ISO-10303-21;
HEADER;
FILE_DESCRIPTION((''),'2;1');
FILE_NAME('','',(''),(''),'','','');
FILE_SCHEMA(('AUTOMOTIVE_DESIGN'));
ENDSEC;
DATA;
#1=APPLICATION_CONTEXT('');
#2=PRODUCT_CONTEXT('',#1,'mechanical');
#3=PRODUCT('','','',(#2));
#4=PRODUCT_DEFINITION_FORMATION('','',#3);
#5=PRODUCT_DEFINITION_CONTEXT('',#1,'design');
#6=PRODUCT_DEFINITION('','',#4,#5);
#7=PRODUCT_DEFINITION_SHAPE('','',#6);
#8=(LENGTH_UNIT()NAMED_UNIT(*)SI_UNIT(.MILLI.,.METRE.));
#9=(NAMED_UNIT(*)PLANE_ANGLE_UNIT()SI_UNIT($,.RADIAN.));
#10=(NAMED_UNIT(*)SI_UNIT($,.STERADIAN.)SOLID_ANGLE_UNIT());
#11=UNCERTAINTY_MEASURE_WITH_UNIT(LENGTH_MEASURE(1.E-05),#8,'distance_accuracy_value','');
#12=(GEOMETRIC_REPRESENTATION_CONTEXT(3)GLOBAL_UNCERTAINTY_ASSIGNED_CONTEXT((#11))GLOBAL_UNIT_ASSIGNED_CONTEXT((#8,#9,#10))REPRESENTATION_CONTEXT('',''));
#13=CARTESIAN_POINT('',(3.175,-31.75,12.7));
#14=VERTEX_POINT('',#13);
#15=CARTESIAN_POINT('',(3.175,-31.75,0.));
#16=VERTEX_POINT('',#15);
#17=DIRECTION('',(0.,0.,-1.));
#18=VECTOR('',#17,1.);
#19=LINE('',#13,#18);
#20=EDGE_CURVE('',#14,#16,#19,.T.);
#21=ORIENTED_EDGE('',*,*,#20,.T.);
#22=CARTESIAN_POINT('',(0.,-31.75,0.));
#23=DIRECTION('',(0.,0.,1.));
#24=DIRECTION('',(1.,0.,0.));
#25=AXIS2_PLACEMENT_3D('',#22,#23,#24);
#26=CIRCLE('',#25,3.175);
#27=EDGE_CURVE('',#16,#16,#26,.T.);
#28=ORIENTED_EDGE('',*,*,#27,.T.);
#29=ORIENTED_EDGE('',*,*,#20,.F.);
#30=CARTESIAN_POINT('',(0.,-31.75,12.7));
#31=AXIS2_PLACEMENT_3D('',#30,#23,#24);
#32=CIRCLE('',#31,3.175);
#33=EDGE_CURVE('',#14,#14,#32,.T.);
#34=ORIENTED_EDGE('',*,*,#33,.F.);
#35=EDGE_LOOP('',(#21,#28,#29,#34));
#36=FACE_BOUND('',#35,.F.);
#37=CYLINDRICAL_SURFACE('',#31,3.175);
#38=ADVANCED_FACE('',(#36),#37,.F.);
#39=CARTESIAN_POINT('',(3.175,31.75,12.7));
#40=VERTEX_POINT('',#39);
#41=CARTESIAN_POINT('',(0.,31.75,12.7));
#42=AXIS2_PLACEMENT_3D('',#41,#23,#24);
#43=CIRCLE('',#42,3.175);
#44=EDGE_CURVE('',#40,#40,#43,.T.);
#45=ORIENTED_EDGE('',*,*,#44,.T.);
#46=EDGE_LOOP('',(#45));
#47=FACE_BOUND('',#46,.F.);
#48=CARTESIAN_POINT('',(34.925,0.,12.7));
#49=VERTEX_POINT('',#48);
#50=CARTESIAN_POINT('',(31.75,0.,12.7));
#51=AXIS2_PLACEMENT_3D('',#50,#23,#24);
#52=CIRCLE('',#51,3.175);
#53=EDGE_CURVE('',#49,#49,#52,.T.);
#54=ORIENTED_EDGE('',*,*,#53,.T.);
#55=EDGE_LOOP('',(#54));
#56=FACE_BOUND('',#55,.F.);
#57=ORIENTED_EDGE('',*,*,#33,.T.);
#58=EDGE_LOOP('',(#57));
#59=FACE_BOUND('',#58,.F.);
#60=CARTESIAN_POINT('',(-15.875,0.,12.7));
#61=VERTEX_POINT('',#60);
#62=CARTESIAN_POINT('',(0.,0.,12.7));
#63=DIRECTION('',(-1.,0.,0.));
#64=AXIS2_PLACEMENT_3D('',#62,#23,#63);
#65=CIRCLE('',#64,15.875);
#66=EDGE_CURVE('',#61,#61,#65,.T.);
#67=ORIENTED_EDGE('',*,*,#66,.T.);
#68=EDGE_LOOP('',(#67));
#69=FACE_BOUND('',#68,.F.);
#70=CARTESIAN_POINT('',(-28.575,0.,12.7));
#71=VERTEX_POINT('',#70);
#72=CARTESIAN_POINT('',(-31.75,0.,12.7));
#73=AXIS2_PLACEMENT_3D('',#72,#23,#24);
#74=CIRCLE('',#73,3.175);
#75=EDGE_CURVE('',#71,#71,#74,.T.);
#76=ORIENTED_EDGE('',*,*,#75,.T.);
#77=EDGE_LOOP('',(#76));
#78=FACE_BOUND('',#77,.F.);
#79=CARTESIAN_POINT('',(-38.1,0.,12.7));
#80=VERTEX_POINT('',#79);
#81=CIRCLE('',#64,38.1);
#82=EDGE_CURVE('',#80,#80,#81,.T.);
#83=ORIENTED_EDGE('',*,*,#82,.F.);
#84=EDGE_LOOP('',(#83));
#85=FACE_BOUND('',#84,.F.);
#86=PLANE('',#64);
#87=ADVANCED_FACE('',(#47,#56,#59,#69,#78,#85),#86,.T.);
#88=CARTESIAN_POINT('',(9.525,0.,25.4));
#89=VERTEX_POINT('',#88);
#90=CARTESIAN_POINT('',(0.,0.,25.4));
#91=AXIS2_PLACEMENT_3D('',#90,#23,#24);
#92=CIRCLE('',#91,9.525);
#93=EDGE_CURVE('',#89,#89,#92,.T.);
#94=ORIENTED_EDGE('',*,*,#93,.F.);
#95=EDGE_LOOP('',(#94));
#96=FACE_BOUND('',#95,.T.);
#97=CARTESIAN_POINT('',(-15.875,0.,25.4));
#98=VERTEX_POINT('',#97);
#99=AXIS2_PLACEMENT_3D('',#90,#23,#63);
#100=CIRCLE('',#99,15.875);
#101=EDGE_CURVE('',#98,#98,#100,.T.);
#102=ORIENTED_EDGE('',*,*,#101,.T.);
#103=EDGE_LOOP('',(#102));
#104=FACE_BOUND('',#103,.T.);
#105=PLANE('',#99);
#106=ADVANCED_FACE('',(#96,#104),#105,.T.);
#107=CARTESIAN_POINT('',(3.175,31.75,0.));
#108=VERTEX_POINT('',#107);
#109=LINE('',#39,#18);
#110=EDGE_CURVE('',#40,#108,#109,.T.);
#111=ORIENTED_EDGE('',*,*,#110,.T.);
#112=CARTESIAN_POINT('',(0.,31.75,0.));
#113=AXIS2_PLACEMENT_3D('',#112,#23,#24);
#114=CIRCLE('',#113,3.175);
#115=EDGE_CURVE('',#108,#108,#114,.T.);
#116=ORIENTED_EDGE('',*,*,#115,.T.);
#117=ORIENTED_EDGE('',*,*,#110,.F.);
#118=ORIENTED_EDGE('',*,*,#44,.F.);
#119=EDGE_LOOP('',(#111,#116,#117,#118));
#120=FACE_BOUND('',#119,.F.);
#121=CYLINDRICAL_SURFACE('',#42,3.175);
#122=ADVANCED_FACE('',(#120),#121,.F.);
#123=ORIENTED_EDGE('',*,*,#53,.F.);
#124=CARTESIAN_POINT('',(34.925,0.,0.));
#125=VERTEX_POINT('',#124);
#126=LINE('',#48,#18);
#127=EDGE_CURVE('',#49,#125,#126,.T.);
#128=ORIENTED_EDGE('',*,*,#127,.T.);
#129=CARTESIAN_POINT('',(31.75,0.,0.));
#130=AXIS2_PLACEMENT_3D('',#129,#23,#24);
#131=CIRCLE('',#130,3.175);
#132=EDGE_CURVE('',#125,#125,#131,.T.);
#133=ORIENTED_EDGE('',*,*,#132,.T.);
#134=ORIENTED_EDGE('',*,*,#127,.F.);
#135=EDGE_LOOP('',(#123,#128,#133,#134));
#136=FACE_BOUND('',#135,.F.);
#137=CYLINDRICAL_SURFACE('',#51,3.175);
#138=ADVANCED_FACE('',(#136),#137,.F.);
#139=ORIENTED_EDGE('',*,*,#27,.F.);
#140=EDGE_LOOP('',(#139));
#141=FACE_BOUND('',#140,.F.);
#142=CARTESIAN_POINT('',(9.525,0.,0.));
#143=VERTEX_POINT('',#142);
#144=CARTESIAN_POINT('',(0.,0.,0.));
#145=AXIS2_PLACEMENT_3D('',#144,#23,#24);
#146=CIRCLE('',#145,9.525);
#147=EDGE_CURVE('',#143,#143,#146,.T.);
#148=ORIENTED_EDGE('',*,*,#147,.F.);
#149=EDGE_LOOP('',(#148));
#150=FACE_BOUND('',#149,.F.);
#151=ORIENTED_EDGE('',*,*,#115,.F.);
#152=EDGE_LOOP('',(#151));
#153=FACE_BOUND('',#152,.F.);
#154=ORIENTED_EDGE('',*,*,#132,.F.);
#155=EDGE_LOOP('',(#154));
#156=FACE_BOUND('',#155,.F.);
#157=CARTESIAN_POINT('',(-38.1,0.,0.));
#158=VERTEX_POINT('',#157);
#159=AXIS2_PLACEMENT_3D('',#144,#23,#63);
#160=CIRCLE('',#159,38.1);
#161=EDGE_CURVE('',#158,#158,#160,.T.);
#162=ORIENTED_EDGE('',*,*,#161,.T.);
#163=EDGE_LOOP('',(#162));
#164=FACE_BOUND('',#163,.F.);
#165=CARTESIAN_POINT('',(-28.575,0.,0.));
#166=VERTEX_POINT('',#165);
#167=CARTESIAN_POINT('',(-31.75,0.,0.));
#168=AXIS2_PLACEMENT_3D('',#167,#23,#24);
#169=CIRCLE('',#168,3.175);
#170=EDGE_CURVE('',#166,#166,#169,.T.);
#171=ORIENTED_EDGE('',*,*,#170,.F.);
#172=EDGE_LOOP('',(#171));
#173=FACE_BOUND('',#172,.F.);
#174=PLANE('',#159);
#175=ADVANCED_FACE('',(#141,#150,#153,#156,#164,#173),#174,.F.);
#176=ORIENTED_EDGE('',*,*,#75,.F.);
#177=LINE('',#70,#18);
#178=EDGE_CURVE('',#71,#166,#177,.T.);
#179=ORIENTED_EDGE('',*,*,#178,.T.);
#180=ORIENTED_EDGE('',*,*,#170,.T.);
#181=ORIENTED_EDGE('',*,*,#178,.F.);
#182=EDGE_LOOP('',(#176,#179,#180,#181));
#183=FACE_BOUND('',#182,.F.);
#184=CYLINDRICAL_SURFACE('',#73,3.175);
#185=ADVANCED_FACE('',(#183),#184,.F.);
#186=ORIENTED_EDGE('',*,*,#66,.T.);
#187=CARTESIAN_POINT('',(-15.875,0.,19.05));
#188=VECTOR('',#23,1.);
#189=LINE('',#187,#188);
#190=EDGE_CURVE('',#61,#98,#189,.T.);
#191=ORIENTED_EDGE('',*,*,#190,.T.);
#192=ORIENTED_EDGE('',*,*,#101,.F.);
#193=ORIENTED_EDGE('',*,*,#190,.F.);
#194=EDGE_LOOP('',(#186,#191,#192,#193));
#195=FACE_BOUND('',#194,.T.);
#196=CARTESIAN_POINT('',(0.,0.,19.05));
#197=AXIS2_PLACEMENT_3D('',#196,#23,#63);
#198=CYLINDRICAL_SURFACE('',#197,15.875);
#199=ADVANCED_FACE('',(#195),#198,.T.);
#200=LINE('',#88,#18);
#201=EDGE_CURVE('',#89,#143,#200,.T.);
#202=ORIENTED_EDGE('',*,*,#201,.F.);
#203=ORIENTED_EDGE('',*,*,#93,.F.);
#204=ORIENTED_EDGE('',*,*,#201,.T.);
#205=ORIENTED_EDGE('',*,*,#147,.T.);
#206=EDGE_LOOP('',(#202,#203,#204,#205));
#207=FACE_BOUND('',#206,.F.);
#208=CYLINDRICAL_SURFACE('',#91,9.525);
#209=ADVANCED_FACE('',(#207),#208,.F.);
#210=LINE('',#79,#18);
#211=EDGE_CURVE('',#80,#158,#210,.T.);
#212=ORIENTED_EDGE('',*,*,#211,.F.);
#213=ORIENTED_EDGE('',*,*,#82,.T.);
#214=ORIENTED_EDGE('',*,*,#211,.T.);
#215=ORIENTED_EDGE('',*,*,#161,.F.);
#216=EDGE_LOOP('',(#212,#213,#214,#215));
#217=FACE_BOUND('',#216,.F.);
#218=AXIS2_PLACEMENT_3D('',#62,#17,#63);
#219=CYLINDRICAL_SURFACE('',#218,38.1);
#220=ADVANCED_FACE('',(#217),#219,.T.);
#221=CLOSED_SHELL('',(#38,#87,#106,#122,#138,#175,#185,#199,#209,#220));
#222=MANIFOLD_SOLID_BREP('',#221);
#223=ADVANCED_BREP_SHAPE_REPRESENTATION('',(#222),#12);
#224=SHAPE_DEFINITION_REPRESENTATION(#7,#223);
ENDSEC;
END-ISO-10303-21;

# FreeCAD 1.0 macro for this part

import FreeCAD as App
import Part
import Sketcher

V = App.Vector
Q = App.Units.Quantity

doc = App.newDocument("Part")
body = doc.addObject("PartDesign::Body", "Body")

# Sketch on XZ plane
sketch1 = body.newObject("Sketcher::SketchObject", "Sketch")
sketch1.AttachmentSupport = (doc.getObject("XZ_Plane"), [""])
sketch1.MapMode = "FlatFace"
sketch1.addGeometry(Part.LineSegment(V(-38.1, 0, 0), V(0, 0, 0)), False)
sketch1.addGeometry(Part.LineSegment(V(0, 0, 0), V(0, 25.4, 0)), False)
sketch1.addGeometry(Part.LineSegment(V(0, 25.4, 0), V(-15.875, 25.4, 0)), False)
sketch1.addGeometry(Part.LineSegment(V(-15.875, 25.4, 0), V(-15.875, 12.7, 0)), False)
sketch1.addGeometry(Part.LineSegment(V(-15.875, 12.7, 0), V(-38.1, 12.7, 0)), False)
sketch1.addGeometry(Part.LineSegment(V(-38.1, 12.7, 0), V(-38.1, 0, 0)), False)
sketch1.addConstraint(Sketcher.Constraint("Coincident", 0, 2, 1, 1))
sketch1.addConstraint(Sketcher.Constraint("Coincident", 1, 2, 2, 1))
sketch1.addConstraint(Sketcher.Constraint("Coincident", 2, 2, 3, 1))
sketch1.addConstraint(Sketcher.Constraint("Coincident", 3, 2, 4, 1))
sketch1.addConstraint(Sketcher.Constraint("Coincident", 4, 2, 5, 1))
sketch1.addConstraint(Sketcher.Constraint("Coincident", 5, 2, 0, 1))
sketch1.addConstraint(Sketcher.Constraint("Horizontal", 0))
sketch1.addConstraint(Sketcher.Constraint("Vertical", 1))
sketch1.addConstraint(Sketcher.Constraint("Horizontal", 2))
sketch1.addConstraint(Sketcher.Constraint("Vertical", 3))
sketch1.addConstraint(Sketcher.Constraint("Horizontal", 4))
sketch1.addConstraint(Sketcher.Constraint("Vertical", 5))
sketch1.addConstraint(Sketcher.Constraint("Coincident", 0, 2, -1, 1))
sketch1.addConstraint(Sketcher.Constraint("Equal", 3, 5))
sketch1.addConstraint(Sketcher.Constraint("DistanceY", 1, 1, 1, 2, Q("1 in")))
sketch1.addConstraint(Sketcher.Constraint("DistanceX", 0, 1, 0, 2, Q("1.5 in")))
sketch1.addConstraint(Sketcher.Constraint("DistanceX", 2, 2, 2, 1, Q("0.625 in")))
revolution = body.newObject("PartDesign::Revolution", "Revolution")
revolution.Profile = sketch1
revolution.ReferenceAxis = (sketch1, ["V_Axis"])
revolution.Angle = 360

# Sketch on XY plane
sketch2 = body.newObject("Sketcher::SketchObject", "Sketch001")
sketch2.AttachmentSupport = (doc.getObject("XY_Plane"), [""])
sketch2.MapMode = "FlatFace"
sketch2.AttachmentOffset = App.Placement(V(0, 0, 0.5 * 25.4), App.Rotation())
sketch2.addGeometry(Part.Circle(V(0, 31.75, 0), V(0, 0, 1), 3.175), False)
sketch2.addGeometry(Part.Circle(V(-31.75, 0, 0), V(0, 0, 1), 3.175), False)
sketch2.addGeometry(Part.Circle(V(0, -31.75, 0), V(0, 0, 1), 3.175), False)
sketch2.addGeometry(Part.Circle(V(31.75, 0, 0), V(0, 0, 1), 3.175), False)
sketch2.addConstraint(Sketcher.Constraint("Equal", 0, 1))
sketch2.addConstraint(Sketcher.Constraint("Equal", 1, 2))
sketch2.addConstraint(Sketcher.Constraint("Equal", 2, 3))
sketch2.addConstraint(Sketcher.Constraint("Symmetric", 0, 3, 2, 3, -1, 1))
sketch2.addConstraint(Sketcher.Constraint("Symmetric", 1, 3, 3, 3, -1, 1))
sketch2.addConstraint(Sketcher.Constraint("PointOnObject", 0, 3, -2))
sketch2.addConstraint(Sketcher.Constraint("PointOnObject", 1, 3, -1))
sketch2.addConstraint(Sketcher.Constraint("Diameter", 0, Q("0.25 in")))
sketch2.addConstraint(Sketcher.Constraint("DistanceY", 2, 3, 0, 3, Q("2.5 in")))
sketch2.addConstraint(Sketcher.Constraint("DistanceX", 1, 3, 3, 3, Q("2.5 in")))
pocket1 = body.newObject("PartDesign::Pocket", "Pocket")
pocket1.Profile = sketch2
pocket1.Length = Q("1 in")

# Sketch on XY plane
sketch3 = body.newObject("Sketcher::SketchObject", "Sketch002")
sketch3.AttachmentSupport = (doc.getObject("XY_Plane"), [""])
sketch3.MapMode = "FlatFace"
sketch3.AttachmentOffset = App.Placement(V(0, 0, 1 * 25.4), App.Rotation())
sketch3.addGeometry(Part.Circle(V(0, 0, 0), V(0, 0, 1), 9.525), False)
sketch3.addConstraint(Sketcher.Constraint("Coincident", 0, 3, -1, 1))
sketch3.addConstraint(Sketcher.Constraint("Diameter", 0, Q("0.75 in")))
pocket2 = body.newObject("PartDesign::Pocket", "Pocket001")
pocket2.Profile = sketch3
pocket2.Length = 50.5226

doc.recompute()
